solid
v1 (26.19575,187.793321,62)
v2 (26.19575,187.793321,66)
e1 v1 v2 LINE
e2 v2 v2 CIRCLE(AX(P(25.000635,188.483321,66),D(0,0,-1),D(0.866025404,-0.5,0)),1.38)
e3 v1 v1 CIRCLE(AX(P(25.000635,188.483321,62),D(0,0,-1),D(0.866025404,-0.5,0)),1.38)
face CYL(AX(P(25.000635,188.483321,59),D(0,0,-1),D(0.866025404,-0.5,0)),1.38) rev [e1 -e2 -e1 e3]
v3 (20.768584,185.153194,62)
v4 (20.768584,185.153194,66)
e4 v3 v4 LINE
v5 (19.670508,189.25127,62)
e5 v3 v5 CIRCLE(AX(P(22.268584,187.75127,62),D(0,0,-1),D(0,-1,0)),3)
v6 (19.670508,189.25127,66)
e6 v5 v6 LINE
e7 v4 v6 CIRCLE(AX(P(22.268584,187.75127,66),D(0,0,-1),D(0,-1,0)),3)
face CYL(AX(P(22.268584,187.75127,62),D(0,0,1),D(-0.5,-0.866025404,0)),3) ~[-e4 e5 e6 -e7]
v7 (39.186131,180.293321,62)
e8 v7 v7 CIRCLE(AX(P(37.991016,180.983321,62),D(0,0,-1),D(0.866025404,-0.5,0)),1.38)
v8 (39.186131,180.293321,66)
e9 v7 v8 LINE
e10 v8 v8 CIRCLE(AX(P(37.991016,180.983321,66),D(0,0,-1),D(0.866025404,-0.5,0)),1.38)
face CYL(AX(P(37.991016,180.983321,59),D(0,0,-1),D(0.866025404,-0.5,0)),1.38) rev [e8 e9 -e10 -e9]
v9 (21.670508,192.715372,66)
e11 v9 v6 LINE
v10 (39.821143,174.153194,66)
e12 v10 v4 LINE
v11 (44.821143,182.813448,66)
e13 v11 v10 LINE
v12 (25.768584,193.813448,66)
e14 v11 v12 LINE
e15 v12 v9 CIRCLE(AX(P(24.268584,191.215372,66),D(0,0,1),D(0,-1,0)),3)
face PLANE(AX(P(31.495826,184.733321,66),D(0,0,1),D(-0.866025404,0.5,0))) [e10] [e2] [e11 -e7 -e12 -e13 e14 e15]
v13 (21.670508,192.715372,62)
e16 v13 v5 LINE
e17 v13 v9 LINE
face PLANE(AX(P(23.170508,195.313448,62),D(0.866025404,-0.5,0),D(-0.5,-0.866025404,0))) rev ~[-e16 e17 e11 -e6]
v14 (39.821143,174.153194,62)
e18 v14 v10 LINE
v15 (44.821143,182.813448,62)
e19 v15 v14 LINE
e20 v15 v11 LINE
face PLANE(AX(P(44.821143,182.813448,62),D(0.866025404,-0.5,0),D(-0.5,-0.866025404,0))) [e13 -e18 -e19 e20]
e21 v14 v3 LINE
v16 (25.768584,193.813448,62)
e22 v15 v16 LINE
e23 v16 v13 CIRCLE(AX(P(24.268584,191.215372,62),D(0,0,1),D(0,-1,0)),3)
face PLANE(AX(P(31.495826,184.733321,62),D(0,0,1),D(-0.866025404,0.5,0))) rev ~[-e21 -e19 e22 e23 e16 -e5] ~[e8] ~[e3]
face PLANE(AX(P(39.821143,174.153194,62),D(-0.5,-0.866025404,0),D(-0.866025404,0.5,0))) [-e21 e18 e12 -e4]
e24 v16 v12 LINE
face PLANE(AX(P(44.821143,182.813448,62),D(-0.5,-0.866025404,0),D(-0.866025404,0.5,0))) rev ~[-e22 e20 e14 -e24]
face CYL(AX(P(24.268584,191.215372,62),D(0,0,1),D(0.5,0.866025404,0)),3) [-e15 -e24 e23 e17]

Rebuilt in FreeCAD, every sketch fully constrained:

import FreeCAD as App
import Part
import Sketcher
from FreeCAD import Vector


def edges_at(feature, points):
    """Names of the edges that pass closest to the given points."""
    edges = feature.Shape.Edges
    near = lambda p: min(range(len(edges)), key=lambda i: edges[i].distToShape(Part.Vertex(*p))[0])
    return sorted({f"Edge{near(p) + 1}" for p in points})

doc = App.newDocument("Part")
body = doc.addObject("PartDesign::Body", "Body")

sketch1 = doc.addObject("Sketcher::SketchObject", "Sketch")
body.addObject(sketch1)
sketch1.AttachmentSupport = (doc.XY_Plane, [""])
sketch1.MapMode = "FlatFace"
sketch1.AttachmentOffset = App.Placement(Vector(0, 0, 59), App.Rotation())
sketch1.addGeometry(Part.Circle(Vector(25, 52, 0), Vector(0, 0, 1), 1.38), False)
sketch1.addConstraint(Sketcher.Constraint("Diameter", 0, 2.76))
sketch1.addConstraint(Sketcher.Constraint("DistanceX", -1, 1, 0, 3, 25.0))
sketch1.addConstraint(Sketcher.Constraint("DistanceY", -1, 1, 0, 3, 52.0))
pad1 = doc.addObject("PartDesign::Pad", "Pad")
body.addObject(pad1)
pad1.Profile = sketch1
pad1.Length = 10
body2 = doc.addObject("PartDesign::Body", "Body001")

sketch2 = doc.addObject("Sketcher::SketchObject", "Sketch001")
body2.addObject(sketch2)
sketch2.AttachmentSupport = (doc.getObject("XY_Plane001"), [""])
sketch2.MapMode = "FlatFace"
sketch2.AttachmentOffset = App.Placement(Vector(0, 0, 59), App.Rotation())
sketch2.addGeometry(Part.Circle(Vector(40, 52, 0), Vector(0, 0, 1), 1.38), False)
sketch2.addConstraint(Sketcher.Constraint("Diameter", 0, 2.76))
sketch2.addConstraint(Sketcher.Constraint("DistanceX", -1, 1, 0, 3, 40.0))
sketch2.addConstraint(Sketcher.Constraint("DistanceY", -1, 1, 0, 3, 52.0))
pad2 = doc.addObject("PartDesign::Pad", "Pad001")
body2.addObject(pad2)
pad2.Profile = sketch2
pad2.Length = 10
body3 = doc.addObject("PartDesign::Body", "Body002")

sketch3 = doc.addObject("Sketcher::SketchObject", "Sketch002")
body3.addObject(sketch3)
sketch3.AttachmentSupport = (doc.getObject("XY_Plane002"), [""])
sketch3.MapMode = "FlatFace"
sketch3.AttachmentOffset = App.Placement(Vector(0, 0, 62), App.Rotation())
sketch3.addGeometry(Part.LineSegment(Vector(45, 47, 0), Vector(45, 57, 0)), False)
sketch3.addGeometry(Part.LineSegment(Vector(45, 57, 0), Vector(20, 57, 0)), False)
sketch3.addGeometry(Part.LineSegment(Vector(20, 57, 0), Vector(20, 47, 0)), False)
sketch3.addGeometry(Part.LineSegment(Vector(20, 47, 0), Vector(45, 47, 0)), False)
sketch3.addConstraint(Sketcher.Constraint("Coincident", 0, 2, 1, 1))
sketch3.addConstraint(Sketcher.Constraint("Coincident", 1, 2, 2, 1))
sketch3.addConstraint(Sketcher.Constraint("Coincident", 2, 2, 3, 1))
sketch3.addConstraint(Sketcher.Constraint("Coincident", 3, 2, 0, 1))
sketch3.addConstraint(Sketcher.Constraint("Vertical", 0))
sketch3.addConstraint(Sketcher.Constraint("Horizontal", 1))
sketch3.addConstraint(Sketcher.Constraint("Vertical", 2))
sketch3.addConstraint(Sketcher.Constraint("Horizontal", 3))
sketch3.addConstraint(Sketcher.Constraint("DistanceX", 1, 2, 1, 1, 25.0))
sketch3.addConstraint(Sketcher.Constraint("DistanceY", 0, 1, 0, 2, 10.0))
sketch3.addConstraint(Sketcher.Constraint("DistanceX", -1, 1, 0, 2, 45.0))
sketch3.addConstraint(Sketcher.Constraint("DistanceY", -1, 1, 0, 2, 57.0))
pad3 = doc.addObject("PartDesign::Pad", "Pad002")
body3.addObject(pad3)
pad3.Profile = sketch3
pad3.Length = 4
doc.recompute()

boolean = doc.addObject("PartDesign::Boolean", "Boolean")
body3.addObject(boolean)
boolean.Type = "Cut"
boolean.addObjects([body2])
doc.recompute()

boolean2 = doc.addObject("PartDesign::Boolean", "Boolean001")
body3.addObject(boolean2)
boolean2.Type = "Cut"
boolean2.addObjects([body])
body4 = doc.addObject("PartDesign::Body", "Body003")
doc.recompute()

body3.Placement = App.Placement(Vector(-20.65, 26.95, 0), App.Rotation(Vector(0, 0, -1), 30))
boolean3 = doc.addObject("PartDesign::Boolean", "Boolean002")
body4.addObject(boolean3)
boolean3.Type = "Fuse"
boolean3.addObjects([body3])
doc.recompute()

fillet = doc.addObject("PartDesign::Fillet", "Fillet")
body4.addObject(fillet)
fillet.Base = (boolean3, edges_at(boolean3, [(25.171, 66.313, 64), (20.171, 57.653, 64)]))
fillet.Radius = 3
body5 = doc.addObject("PartDesign::Body", "Body004")
doc.recompute()

body4.Placement = App.Placement(Vector(-2, 129, 0), App.Rotation(Vector(0, 0, 1), 0))
boolean4 = doc.addObject("PartDesign::Boolean", "Boolean003")
body5.addObject(boolean4)
boolean4.Type = "Fuse"
boolean4.addObjects([body4])

doc.recompute()
